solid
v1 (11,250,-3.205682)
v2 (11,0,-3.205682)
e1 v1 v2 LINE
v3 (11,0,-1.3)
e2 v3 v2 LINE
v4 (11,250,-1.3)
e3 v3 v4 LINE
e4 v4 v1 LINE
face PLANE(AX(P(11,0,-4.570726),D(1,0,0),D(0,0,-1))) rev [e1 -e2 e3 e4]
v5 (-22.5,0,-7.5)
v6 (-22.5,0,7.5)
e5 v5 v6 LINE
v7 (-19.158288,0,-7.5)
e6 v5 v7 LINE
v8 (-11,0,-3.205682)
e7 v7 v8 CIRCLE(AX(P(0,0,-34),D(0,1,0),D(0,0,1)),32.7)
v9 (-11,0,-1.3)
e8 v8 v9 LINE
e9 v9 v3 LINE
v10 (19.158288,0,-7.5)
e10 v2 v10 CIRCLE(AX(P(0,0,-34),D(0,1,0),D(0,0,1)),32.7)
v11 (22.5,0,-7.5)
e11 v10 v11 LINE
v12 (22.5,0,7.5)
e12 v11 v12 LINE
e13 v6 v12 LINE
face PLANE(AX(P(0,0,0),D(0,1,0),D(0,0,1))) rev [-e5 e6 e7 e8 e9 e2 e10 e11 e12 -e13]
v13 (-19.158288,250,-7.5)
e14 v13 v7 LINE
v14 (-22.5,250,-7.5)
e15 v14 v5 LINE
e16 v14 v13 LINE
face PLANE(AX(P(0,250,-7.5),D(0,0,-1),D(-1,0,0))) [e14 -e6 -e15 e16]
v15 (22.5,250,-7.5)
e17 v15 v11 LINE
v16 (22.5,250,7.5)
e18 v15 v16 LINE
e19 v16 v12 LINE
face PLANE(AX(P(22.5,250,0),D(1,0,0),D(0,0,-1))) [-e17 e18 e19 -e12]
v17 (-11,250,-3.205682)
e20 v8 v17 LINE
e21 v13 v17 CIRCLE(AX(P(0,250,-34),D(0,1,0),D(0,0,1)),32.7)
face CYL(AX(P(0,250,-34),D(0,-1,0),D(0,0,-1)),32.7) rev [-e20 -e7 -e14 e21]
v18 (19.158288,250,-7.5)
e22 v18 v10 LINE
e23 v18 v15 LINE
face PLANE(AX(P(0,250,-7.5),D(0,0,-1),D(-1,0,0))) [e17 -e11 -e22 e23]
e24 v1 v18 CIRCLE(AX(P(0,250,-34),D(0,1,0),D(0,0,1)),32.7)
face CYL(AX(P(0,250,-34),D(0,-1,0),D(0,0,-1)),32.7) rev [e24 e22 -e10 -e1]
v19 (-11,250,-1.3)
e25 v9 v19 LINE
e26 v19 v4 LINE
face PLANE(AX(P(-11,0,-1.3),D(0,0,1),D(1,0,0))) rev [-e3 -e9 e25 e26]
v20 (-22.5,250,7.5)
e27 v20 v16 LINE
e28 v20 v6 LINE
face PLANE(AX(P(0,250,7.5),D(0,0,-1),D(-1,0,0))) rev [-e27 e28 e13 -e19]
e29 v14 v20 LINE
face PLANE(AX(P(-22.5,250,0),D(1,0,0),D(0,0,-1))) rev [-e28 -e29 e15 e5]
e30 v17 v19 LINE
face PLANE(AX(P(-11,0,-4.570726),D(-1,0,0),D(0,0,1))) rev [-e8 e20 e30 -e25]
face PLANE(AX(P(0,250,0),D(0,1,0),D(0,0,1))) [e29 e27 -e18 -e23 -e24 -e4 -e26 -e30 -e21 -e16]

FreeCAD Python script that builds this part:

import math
import FreeCAD as App
import Part
import Sketcher
from FreeCAD import Vector


def add_polygon(sketch, points):
    """Adds a closed chain of lines whose ends are joined by coincident constraints."""
    first, n = sketch.GeometryCount, len(points)
    for a, b in zip(points, points[1:] + points[:1]):
        sketch.addGeometry(Part.LineSegment(App.Vector(*a, 0), App.Vector(*b, 0)), False)
    for i in range(n):
        sketch.addConstraint(Sketcher.Constraint("Coincident", first + i, 2, first + (i + 1) % n, 1))

doc = App.newDocument("Part")
body = doc.addObject("PartDesign::Body", "Body")

# Sketch on XZ plane
sketch1 = body.newObject("Sketcher::SketchObject", "Sketch")
sketch1.AttachmentSupport = (doc.getObject("XZ_Plane"), [""])
sketch1.MapMode = "FlatFace"
sketch1.addGeometry([
    Part.LineSegment(Vector(-19.2, -7.5, 0), Vector(-22.5, -7.5, 0)),  # 0
    Part.LineSegment(Vector(-22.5, -7.5, 0), Vector(-22.5, 7.5, 0)),  # 1
    Part.LineSegment(Vector(-22.5, 7.5, 0), Vector(22.5, 7.5, 0)),  # 2
    Part.LineSegment(Vector(22.5, 7.5, 0), Vector(22.5, -7.5, 0)),  # 3
    Part.LineSegment(Vector(22.5, -7.5, 0), Vector(19.2, -7.5, 0)),  # 4
    Part.ArcOfCircle(Part.Circle(Vector(0, -34, 0), Vector(0, 0, 1), 32.7), math.radians(54), math.radians(126)),  # 5
], False)
sketch1.addConstraint([
    Sketcher.Constraint("Coincident", 0, 2, 1, 1),
    Sketcher.Constraint("Coincident", 1, 2, 2, 1),
    Sketcher.Constraint("Coincident", 2, 2, 3, 1),
    Sketcher.Constraint("Coincident", 3, 2, 4, 1),
    Sketcher.Constraint("Coincident", 4, 2, 5, 1),
    Sketcher.Constraint("Coincident", 5, 2, 0, 1),
    Sketcher.Constraint("Horizontal", 0),
    Sketcher.Constraint("Vertical", 1),
    Sketcher.Constraint("Horizontal", 2),
    Sketcher.Constraint("Vertical", 3),
    Sketcher.Constraint("Horizontal", 4),
    Sketcher.Constraint("Symmetric", 0, 2, 2, 2, -1, 1),
    Sketcher.Constraint("Symmetric", 4, 2, 5, 2, -2),
    Sketcher.Constraint("Radius", 5, 32.7),
    Sketcher.Constraint("DistanceX", 2, 1, 2, 2, 45.0),
    Sketcher.Constraint("DistanceY", 1, 1, 1, 2, 15.0),
    Sketcher.Constraint("DistanceY", 5, 3, -1, 1, 34.0),
])
pad1 = body.newObject("PartDesign::Pad", "Pad")
pad1.Profile = sketch1
pad1.Length = 250
pad1.Reversed = True

# Sketch on XZ plane
sketch2 = body.newObject("Sketcher::SketchObject", "Sketch001")
sketch2.AttachmentSupport = (doc.getObject("XZ_Plane"), [""])
sketch2.MapMode = "FlatFace"
sketch2.AttachmentOffset = App.Placement(Vector(0, 0, -250), App.Rotation())
add_polygon(sketch2, [(-11, -4.6), (-11, -1.3), (11, -1.3), (11, -4.6)])  # lines 0-3
sketch2.addConstraint([
    Sketcher.Constraint("Vertical", 0),
    Sketcher.Constraint("Horizontal", 1),
    Sketcher.Constraint("Vertical", 2),
    Sketcher.Constraint("Horizontal", 3),
    Sketcher.Constraint("DistanceX", 1, 1, 1, 2, 22.0),
    Sketcher.Constraint("DistanceX", 0, 2, -1, 1, 11.0),
    Sketcher.Constraint("DistanceY", 0, 2, -1, 1, 1.3),
    Sketcher.Constraint("DistanceY", 0, 1, 0, 2, 3.270726),
])
pocket1 = body.newObject("PartDesign::Pocket", "Pocket")
pocket1.Profile = sketch2
pocket1.Type = "ThroughAll"
pocket1.Reversed = True

doc.recompute()
